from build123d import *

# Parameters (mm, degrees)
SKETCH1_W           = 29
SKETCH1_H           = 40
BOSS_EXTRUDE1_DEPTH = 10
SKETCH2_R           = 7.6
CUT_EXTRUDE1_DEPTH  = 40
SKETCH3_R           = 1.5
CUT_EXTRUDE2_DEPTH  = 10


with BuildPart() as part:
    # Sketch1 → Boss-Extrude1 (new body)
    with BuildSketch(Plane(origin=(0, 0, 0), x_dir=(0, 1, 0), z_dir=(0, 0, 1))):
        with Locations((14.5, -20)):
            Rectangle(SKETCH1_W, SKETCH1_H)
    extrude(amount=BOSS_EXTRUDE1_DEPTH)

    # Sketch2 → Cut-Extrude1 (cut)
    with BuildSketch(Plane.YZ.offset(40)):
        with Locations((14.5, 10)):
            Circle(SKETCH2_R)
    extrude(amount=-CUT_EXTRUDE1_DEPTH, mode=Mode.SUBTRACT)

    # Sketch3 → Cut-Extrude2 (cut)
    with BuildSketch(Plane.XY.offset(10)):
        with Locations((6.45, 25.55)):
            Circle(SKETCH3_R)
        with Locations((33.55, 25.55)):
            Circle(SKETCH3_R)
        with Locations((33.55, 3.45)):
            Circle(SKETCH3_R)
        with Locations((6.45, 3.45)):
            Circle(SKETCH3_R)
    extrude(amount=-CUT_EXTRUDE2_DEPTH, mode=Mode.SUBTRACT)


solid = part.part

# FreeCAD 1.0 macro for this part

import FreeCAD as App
import Part
import Sketcher


def add_polygon(sketch, points):
    """Adds a closed chain of lines whose ends are joined by coincident constraints."""
    first, n = sketch.GeometryCount, len(points)
    for a, b in zip(points, points[1:] + points[:1]):
        sketch.addGeometry(Part.LineSegment(App.Vector(*a, 0), App.Vector(*b, 0)), False)
    for i in range(n):
        sketch.addConstraint(Sketcher.Constraint("Coincident", first + i, 2, first + (i + 1) % n, 1))

doc = App.newDocument("Part")
body = doc.addObject("PartDesign::Body", "Body")

sketch1 = doc.addObject("Sketcher::SketchObject", "Sketch")
body.addObject(sketch1)
sketch1.AttachmentSupport = (doc.XY_Plane, [""])
sketch1.MapMode = "FlatFace"
add_polygon(sketch1, [(0, 0), (40, 0), (40, 29), (0, 29)])
sketch1.addConstraint([
    Sketcher.Constraint("Horizontal", 0),
    Sketcher.Constraint("Vertical", 1),
    Sketcher.Constraint("Horizontal", 2),
    Sketcher.Constraint("Vertical", 3),
    Sketcher.Constraint("Coincident", 3, 2, -1, 1),
    Sketcher.Constraint("DistanceX", 0, 1, 0, 2, 40.0),
    Sketcher.Constraint("DistanceY", 1, 1, 1, 2, 29.0),
])
pad1 = doc.addObject("PartDesign::Pad", "Pad")
body.addObject(pad1)
pad1.Profile = sketch1
pad1.Length = 10

sketch2 = doc.addObject("Sketcher::SketchObject", "Sketch001")
body.addObject(sketch2)
sketch2.AttachmentSupport = (doc.YZ_Plane, [""])
sketch2.MapMode = "FlatFace"
sketch2.AttachmentOffset = App.Placement(App.Vector(0, 0, 40), App.Rotation())
sketch2.addGeometry(Part.Circle(App.Vector(14.5, 10, 0), App.Vector(0, 0, 1), 7.6), False)
sketch2.addConstraint([
    Sketcher.Constraint("Diameter", 0, 15.2),
    Sketcher.Constraint("DistanceY", -1, 1, 0, 3, 10.0),
    Sketcher.Constraint("DistanceX", -1, 1, 0, 3, 14.5),
])
pocket1 = doc.addObject("PartDesign::Pocket", "Pocket")
body.addObject(pocket1)
pocket1.Profile = sketch2
pocket1.Length = 40

sketch3 = doc.addObject("Sketcher::SketchObject", "Sketch002")
body.addObject(sketch3)
sketch3.AttachmentSupport = (doc.XY_Plane, [""])
sketch3.MapMode = "FlatFace"
sketch3.AttachmentOffset = App.Placement(App.Vector(0, 0, 10), App.Rotation())
sketch3.addGeometry([
    Part.Circle(App.Vector(6.45, 25.55, 0), App.Vector(0, 0, 1), 1.5),
    Part.Circle(App.Vector(33.55, 25.55, 0), App.Vector(0, 0, 1), 1.5),
    Part.Circle(App.Vector(33.55, 3.45, 0), App.Vector(0, 0, 1), 1.5),
    Part.Circle(App.Vector(6.45, 3.45, 0), App.Vector(0, 0, 1), 1.5),
], False)
sketch3.addConstraint([
    Sketcher.Constraint("Equal", 0, 1),
    Sketcher.Constraint("Equal", 1, 2),
    Sketcher.Constraint("Equal", 2, 3),
    Sketcher.Constraint("Horizontal", 0, 3, 1, 3),
    Sketcher.Constraint("Horizontal", 2, 3, 3, 3),
    Sketcher.Constraint("Vertical", 1, 3, 2, 3),
    Sketcher.Constraint("Vertical", 0, 3, 3, 3),
    Sketcher.Constraint("Diameter", 0, 3.0),
    Sketcher.Constraint("DistanceX", 0, 3, 1, 3, 27.1),
    Sketcher.Constraint("DistanceY", 2, 3, 1, 3, 22.1),
    Sketcher.Constraint("DistanceX", -1, 1, 0, 3, 6.45),
    Sketcher.Constraint("DistanceY", -1, 1, 0, 3, 25.55),
])
pocket2 = doc.addObject("PartDesign::Pocket", "Pocket001")
body.addObject(pocket2)
pocket2.Profile = sketch3
pocket2.Length = 10

doc.recompute()
